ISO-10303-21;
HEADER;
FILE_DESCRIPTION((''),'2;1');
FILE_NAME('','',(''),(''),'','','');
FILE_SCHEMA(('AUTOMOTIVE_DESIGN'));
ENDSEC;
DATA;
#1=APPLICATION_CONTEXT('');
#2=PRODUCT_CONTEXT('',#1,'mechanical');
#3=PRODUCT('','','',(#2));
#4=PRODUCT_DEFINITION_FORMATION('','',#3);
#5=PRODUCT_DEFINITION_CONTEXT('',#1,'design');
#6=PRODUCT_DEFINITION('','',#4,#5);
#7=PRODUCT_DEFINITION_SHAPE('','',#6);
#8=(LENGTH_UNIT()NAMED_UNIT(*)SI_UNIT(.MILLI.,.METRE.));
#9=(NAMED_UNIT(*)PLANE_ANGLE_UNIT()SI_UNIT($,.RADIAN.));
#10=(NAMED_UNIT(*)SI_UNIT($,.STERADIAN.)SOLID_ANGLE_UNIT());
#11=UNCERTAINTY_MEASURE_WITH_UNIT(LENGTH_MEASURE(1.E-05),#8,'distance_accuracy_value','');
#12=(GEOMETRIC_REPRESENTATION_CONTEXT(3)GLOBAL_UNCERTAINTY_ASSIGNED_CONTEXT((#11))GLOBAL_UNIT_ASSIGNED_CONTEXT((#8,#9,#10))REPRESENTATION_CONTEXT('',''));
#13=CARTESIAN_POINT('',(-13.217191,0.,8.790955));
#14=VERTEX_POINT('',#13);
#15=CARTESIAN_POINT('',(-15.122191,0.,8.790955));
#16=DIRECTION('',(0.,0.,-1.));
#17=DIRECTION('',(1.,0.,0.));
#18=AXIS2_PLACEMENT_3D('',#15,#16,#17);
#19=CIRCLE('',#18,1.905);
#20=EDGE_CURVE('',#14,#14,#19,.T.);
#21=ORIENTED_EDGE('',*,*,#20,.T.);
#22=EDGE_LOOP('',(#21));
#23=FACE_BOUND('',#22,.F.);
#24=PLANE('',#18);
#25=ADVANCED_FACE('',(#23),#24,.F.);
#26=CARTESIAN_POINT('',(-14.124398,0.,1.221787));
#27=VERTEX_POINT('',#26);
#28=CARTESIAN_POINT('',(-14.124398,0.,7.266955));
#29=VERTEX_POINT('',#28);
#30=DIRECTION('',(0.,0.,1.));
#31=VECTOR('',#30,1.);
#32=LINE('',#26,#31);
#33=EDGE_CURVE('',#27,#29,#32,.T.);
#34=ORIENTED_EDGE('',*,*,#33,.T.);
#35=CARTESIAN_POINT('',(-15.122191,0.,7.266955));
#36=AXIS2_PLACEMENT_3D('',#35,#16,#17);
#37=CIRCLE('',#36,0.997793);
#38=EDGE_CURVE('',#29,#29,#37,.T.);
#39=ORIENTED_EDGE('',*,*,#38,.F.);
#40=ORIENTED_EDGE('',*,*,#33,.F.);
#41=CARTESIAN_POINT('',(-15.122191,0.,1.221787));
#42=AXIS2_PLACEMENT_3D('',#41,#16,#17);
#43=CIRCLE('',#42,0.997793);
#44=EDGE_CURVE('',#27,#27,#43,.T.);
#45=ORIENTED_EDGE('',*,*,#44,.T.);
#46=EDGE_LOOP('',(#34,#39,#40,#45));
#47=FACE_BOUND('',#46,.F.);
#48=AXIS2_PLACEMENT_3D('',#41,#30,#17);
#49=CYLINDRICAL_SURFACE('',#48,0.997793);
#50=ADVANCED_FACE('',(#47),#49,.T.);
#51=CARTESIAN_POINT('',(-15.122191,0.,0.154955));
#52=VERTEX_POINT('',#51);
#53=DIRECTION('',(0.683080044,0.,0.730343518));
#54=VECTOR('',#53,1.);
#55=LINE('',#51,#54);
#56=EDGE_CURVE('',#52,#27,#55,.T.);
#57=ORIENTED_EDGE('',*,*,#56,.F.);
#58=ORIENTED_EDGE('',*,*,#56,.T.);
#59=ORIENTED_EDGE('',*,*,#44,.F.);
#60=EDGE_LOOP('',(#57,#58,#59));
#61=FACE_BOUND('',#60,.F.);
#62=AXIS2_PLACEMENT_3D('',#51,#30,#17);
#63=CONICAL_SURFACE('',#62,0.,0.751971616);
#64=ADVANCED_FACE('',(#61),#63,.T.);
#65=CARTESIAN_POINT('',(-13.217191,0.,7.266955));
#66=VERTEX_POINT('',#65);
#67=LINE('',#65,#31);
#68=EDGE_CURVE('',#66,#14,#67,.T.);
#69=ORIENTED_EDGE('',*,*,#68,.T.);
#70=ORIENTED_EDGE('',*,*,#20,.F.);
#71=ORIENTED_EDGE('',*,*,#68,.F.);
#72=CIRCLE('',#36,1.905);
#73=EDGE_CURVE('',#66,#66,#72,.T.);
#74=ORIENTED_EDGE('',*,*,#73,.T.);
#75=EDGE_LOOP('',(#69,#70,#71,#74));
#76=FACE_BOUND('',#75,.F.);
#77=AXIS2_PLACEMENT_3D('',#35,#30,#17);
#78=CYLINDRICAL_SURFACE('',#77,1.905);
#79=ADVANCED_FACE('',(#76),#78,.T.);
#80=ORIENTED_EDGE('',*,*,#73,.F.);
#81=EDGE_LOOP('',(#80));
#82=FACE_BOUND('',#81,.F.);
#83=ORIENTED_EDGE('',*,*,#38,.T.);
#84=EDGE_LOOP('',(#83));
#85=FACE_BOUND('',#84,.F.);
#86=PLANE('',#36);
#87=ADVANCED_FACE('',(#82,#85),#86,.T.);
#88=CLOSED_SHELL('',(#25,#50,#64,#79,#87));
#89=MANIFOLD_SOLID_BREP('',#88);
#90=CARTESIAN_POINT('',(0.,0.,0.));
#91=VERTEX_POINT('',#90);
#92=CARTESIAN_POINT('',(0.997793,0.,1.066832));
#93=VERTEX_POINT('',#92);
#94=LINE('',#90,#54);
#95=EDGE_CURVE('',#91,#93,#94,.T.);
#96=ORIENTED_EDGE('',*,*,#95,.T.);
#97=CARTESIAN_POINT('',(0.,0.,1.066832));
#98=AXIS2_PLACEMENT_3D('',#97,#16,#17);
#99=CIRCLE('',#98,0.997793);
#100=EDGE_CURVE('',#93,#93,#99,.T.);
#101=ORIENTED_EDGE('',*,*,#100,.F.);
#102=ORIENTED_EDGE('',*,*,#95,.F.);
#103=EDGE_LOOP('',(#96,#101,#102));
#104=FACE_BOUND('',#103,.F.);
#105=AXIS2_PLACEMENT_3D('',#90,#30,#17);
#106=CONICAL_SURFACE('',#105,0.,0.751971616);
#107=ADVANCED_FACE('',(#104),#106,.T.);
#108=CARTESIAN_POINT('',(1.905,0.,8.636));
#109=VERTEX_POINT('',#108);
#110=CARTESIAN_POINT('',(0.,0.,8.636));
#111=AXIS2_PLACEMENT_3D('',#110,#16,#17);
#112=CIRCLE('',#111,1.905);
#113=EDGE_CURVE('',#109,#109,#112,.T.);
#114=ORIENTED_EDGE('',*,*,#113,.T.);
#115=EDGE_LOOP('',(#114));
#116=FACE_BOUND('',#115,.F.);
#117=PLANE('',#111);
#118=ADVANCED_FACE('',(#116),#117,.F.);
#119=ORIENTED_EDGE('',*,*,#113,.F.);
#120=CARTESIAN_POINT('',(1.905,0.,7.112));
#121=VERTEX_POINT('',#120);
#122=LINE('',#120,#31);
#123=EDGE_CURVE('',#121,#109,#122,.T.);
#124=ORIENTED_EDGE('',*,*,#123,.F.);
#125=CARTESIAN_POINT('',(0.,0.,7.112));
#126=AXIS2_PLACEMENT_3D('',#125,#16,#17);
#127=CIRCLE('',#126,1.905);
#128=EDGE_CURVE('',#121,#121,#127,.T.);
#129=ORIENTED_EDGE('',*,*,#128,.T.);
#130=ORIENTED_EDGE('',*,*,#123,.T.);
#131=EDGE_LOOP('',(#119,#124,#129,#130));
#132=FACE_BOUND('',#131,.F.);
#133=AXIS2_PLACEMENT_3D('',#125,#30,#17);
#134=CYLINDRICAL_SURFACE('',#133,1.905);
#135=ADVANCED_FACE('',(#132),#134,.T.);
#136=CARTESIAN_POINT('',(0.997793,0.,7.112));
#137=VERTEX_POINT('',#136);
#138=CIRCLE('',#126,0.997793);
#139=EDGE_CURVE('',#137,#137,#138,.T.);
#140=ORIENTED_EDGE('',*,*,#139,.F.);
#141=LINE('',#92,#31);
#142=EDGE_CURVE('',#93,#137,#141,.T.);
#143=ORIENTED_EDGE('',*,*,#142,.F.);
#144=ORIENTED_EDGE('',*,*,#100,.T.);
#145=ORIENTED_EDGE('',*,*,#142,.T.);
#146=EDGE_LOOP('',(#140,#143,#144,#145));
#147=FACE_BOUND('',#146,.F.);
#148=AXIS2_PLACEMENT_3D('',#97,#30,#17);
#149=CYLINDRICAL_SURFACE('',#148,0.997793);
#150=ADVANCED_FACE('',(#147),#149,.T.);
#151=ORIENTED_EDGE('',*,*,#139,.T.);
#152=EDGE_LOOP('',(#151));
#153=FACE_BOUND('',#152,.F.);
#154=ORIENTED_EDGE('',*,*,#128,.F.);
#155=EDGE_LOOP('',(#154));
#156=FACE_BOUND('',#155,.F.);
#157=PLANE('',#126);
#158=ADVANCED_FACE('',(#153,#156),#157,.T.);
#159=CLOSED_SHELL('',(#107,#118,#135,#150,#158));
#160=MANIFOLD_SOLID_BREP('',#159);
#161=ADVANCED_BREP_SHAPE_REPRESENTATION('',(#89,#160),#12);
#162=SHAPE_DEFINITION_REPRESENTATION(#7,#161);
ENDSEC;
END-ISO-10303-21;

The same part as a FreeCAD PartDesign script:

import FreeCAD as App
import Part
import Sketcher
from FreeCAD import Vector
Q = App.Units.Quantity


def add_polygon(sketch, points):
    """Adds a closed chain of lines whose ends are joined by coincident constraints."""
    first, n = sketch.GeometryCount, len(points)
    for a, b in zip(points, points[1:] + points[:1]):
        sketch.addGeometry(Part.LineSegment(App.Vector(*a, 0), App.Vector(*b, 0)), False)
    for i in range(n):
        sketch.addConstraint(Sketcher.Constraint("Coincident", first + i, 2, first + (i + 1) % n, 1))

doc = App.newDocument("Part")
body = doc.addObject("PartDesign::Body", "Body")

# Sketch on XZ plane
sketch1 = body.newObject("Sketcher::SketchObject", "Sketch")
sketch1.AttachmentSupport = (doc.getObject("XZ_Plane"), [""])
sketch1.MapMode = "FlatFace"
add_polygon(sketch1, [(0, 8.636), (0, 0), (0.997793, 1.066832), (0.997793, 7.112), (1.905, 7.112), (1.905, 8.636)])  # lines 0-5
sketch1.addConstraint([
    Sketcher.Constraint("Vertical", 0),
    Sketcher.Constraint("Vertical", 2),
    Sketcher.Constraint("Horizontal", 3),
    Sketcher.Constraint("Vertical", 4),
    Sketcher.Constraint("Horizontal", 5),
    Sketcher.Constraint("Coincident", 0, 2, -1, 1),
    Sketcher.Constraint("DistanceY", 0, 2, 0, 1, Q("0.34 in")),
    Sketcher.Constraint("DistanceY", 4, 1, 4, 2, Q("0.06 in")),
    Sketcher.Constraint("DistanceX", 5, 2, 5, 1, Q("0.075 in")),
    Sketcher.Constraint("DistanceY", 2, 1, 2, 2, 6.045168),
    Sketcher.Constraint("DistanceX", 3, 1, 3, 2, 0.907207),
])
revolution = body.newObject("PartDesign::Revolution", "Revolution")
revolution.Profile = sketch1
revolution.ReferenceAxis = (sketch1, ["V_Axis"])
revolution.Angle = 360
body2 = doc.addObject("PartDesign::Body", "Body001")

# Sketch on XZ plane
sketch2 = body2.newObject("Sketcher::SketchObject", "Sketch001")
sketch2.AttachmentSupport = (doc.getObject("XZ_Plane001"), [""])
sketch2.MapMode = "FlatFace"
add_polygon(sketch2, [(-15.122191, 8.790955), (-15.122191, 0.154955), (-14.124398, 1.221787), (-14.124398, 7.266955), (-13.217191, 7.266955), (-13.217191, 8.790955)])  # lines 0-5
sketch2.addGeometry(Part.LineSegment(Vector(-15.122191, 8.790955, 0), Vector(-15.122191, 0.154955, 0)), True)  # axis
sketch2.addConstraint([
    Sketcher.Constraint("Vertical", 0),
    Sketcher.Constraint("Vertical", 2),
    Sketcher.Constraint("Horizontal", 3),
    Sketcher.Constraint("Vertical", 4),
    Sketcher.Constraint("Horizontal", 5),
    Sketcher.Constraint("Vertical", 6),
    Sketcher.Constraint("Coincident", 6, 1, 5, 2),
    Sketcher.Constraint("Equal", 0, 6),
    Sketcher.Constraint("DistanceY", 0, 2, 0, 1, Q("0.34 in")),
    Sketcher.Constraint("DistanceY", 4, 1, 4, 2, Q("0.06 in")),
    Sketcher.Constraint("DistanceX", 5, 2, 5, 1, Q("0.075 in")),
    Sketcher.Constraint("DistanceY", 2, 1, 2, 2, 6.045168),
    Sketcher.Constraint("DistanceX", 3, 1, 3, 2, 0.907207),
    Sketcher.Constraint("DistanceX", 0, 2, -1, 1, 15.122191),
    Sketcher.Constraint("DistanceY", -1, 1, 0, 2, 0.154955),
])
revolution2 = body2.newObject("PartDesign::Revolution", "Revolution001")
revolution2.Profile = sketch2
revolution2.ReferenceAxis = (sketch2, ["Axis0"])
revolution2.Angle = 360

doc.recompute()
